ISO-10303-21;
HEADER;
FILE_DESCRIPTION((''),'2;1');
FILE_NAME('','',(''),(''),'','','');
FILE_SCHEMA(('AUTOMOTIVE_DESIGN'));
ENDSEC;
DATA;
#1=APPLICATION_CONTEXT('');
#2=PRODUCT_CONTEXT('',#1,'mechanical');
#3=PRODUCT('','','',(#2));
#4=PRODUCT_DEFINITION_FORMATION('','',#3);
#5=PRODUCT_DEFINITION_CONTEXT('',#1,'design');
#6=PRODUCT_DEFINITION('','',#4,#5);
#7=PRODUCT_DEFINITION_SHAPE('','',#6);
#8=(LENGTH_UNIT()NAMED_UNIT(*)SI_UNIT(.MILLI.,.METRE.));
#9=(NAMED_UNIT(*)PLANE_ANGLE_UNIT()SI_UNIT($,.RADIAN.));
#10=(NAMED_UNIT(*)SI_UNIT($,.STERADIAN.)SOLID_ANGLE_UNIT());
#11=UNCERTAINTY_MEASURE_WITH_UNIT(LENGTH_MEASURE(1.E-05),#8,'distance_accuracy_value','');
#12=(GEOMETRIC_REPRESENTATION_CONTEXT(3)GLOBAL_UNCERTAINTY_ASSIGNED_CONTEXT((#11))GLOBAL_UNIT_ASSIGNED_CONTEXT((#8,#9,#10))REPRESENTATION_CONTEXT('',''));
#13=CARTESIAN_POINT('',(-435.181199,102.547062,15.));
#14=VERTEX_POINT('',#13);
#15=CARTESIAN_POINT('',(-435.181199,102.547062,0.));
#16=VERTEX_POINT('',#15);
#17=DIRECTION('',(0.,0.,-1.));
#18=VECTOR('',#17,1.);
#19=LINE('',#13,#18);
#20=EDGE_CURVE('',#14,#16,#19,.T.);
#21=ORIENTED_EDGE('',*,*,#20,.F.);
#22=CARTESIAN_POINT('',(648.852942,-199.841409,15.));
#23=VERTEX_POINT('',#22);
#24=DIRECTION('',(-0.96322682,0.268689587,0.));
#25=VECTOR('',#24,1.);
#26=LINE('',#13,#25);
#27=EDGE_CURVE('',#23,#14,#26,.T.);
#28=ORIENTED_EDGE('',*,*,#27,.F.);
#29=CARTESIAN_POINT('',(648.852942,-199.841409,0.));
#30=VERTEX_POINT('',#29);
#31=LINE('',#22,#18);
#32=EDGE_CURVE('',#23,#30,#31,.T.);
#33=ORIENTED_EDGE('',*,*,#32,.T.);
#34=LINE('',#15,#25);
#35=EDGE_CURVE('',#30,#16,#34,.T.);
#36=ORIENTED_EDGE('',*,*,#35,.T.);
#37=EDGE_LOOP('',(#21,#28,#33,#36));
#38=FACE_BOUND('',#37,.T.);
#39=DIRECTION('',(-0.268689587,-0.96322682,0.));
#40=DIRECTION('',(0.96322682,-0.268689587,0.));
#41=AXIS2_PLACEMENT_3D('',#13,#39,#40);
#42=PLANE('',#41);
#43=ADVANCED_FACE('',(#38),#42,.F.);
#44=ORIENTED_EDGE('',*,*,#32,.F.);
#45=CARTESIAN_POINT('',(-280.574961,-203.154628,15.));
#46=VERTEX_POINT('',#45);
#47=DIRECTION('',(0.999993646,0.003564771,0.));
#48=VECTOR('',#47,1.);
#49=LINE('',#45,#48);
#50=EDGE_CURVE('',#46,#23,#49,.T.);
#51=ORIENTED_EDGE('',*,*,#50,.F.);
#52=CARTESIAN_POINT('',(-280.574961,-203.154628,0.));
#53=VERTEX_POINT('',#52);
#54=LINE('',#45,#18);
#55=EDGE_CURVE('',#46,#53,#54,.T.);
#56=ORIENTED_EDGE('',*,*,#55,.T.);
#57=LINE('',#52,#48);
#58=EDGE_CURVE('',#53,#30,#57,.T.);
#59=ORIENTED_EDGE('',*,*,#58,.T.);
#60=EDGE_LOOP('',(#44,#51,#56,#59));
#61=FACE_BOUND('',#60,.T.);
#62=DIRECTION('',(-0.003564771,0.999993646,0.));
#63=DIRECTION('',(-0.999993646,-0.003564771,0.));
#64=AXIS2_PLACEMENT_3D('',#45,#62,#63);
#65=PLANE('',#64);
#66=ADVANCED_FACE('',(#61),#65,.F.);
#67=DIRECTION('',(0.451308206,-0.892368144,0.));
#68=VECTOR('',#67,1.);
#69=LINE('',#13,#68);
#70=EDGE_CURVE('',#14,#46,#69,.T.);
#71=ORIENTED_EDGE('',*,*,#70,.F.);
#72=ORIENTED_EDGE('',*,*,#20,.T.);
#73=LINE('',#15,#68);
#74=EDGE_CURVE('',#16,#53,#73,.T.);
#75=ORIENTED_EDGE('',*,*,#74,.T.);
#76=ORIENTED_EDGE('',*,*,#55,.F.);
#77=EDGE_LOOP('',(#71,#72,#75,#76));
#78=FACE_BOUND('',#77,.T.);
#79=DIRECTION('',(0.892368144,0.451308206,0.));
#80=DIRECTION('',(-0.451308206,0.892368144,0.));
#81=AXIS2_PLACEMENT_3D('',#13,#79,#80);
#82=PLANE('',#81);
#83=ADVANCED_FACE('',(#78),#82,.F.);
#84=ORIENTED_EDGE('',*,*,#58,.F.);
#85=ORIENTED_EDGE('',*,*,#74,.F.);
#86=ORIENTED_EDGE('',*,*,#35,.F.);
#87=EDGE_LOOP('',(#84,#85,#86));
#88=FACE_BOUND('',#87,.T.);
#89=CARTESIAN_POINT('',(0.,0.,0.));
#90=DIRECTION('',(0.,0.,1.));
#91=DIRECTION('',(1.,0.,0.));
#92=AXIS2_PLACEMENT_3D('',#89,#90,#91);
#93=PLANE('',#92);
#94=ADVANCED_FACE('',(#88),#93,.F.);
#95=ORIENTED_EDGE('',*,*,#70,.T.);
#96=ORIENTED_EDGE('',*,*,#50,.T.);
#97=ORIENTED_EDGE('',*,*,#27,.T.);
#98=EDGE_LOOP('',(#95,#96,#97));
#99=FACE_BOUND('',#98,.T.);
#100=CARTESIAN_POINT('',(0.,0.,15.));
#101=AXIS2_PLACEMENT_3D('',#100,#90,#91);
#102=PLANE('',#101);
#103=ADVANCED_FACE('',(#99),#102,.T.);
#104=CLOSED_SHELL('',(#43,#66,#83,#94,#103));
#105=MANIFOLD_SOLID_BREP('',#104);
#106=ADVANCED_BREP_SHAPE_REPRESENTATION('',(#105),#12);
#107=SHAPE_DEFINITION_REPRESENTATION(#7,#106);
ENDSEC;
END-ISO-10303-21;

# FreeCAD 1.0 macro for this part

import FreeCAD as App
import Part
import Sketcher
from FreeCAD import Vector

doc = App.newDocument("Part")
body = doc.addObject("PartDesign::Body", "Body")

# Sketch on XY plane
sketch1 = doc.addObject("Sketcher::SketchObject", "Sketch")
body.addObject(sketch1)
sketch1.AttachmentSupport = (doc.XY_Plane, [""])
sketch1.MapMode = "FlatFace"
sketch1.addGeometry([
    Part.LineSegment(Vector(648.852942, -199.841409, 0), Vector(-435.181199, 102.547062, 0)),
    Part.LineSegment(Vector(-435.181199, 102.547062, 0), Vector(-280.574961, -203.154628, 0)),
    Part.LineSegment(Vector(-280.574961, -203.154628, 0), Vector(648.852942, -199.841409, 0)),
], False)
sketch1.addConstraint([
    Sketcher.Constraint("Coincident", 0, 2, 1, 1),
    Sketcher.Constraint("Coincident", 1, 2, 2, 1),
    Sketcher.Constraint("Coincident", 2, 2, 0, 1),
    Sketcher.Constraint("DistanceX", 0, 2, -1, 1, 435.181199),
    Sketcher.Constraint("Distance", 0, 1125.419391),
    Sketcher.Constraint("Distance", 2, 929.433809),
    Sketcher.Constraint("DistanceY", -1, 1, 0, 2, 102.547062),
    Sketcher.Constraint("DistanceX", 1, 2, -1, 1, 280.574961),
    Sketcher.Constraint("DistanceY", 2, 2, -1, 1, 199.841409),
])
pad1 = doc.addObject("PartDesign::Pad", "Pad")
body.addObject(pad1)
pad1.Profile = sketch1
pad1.Length = 15

doc.recompute()
